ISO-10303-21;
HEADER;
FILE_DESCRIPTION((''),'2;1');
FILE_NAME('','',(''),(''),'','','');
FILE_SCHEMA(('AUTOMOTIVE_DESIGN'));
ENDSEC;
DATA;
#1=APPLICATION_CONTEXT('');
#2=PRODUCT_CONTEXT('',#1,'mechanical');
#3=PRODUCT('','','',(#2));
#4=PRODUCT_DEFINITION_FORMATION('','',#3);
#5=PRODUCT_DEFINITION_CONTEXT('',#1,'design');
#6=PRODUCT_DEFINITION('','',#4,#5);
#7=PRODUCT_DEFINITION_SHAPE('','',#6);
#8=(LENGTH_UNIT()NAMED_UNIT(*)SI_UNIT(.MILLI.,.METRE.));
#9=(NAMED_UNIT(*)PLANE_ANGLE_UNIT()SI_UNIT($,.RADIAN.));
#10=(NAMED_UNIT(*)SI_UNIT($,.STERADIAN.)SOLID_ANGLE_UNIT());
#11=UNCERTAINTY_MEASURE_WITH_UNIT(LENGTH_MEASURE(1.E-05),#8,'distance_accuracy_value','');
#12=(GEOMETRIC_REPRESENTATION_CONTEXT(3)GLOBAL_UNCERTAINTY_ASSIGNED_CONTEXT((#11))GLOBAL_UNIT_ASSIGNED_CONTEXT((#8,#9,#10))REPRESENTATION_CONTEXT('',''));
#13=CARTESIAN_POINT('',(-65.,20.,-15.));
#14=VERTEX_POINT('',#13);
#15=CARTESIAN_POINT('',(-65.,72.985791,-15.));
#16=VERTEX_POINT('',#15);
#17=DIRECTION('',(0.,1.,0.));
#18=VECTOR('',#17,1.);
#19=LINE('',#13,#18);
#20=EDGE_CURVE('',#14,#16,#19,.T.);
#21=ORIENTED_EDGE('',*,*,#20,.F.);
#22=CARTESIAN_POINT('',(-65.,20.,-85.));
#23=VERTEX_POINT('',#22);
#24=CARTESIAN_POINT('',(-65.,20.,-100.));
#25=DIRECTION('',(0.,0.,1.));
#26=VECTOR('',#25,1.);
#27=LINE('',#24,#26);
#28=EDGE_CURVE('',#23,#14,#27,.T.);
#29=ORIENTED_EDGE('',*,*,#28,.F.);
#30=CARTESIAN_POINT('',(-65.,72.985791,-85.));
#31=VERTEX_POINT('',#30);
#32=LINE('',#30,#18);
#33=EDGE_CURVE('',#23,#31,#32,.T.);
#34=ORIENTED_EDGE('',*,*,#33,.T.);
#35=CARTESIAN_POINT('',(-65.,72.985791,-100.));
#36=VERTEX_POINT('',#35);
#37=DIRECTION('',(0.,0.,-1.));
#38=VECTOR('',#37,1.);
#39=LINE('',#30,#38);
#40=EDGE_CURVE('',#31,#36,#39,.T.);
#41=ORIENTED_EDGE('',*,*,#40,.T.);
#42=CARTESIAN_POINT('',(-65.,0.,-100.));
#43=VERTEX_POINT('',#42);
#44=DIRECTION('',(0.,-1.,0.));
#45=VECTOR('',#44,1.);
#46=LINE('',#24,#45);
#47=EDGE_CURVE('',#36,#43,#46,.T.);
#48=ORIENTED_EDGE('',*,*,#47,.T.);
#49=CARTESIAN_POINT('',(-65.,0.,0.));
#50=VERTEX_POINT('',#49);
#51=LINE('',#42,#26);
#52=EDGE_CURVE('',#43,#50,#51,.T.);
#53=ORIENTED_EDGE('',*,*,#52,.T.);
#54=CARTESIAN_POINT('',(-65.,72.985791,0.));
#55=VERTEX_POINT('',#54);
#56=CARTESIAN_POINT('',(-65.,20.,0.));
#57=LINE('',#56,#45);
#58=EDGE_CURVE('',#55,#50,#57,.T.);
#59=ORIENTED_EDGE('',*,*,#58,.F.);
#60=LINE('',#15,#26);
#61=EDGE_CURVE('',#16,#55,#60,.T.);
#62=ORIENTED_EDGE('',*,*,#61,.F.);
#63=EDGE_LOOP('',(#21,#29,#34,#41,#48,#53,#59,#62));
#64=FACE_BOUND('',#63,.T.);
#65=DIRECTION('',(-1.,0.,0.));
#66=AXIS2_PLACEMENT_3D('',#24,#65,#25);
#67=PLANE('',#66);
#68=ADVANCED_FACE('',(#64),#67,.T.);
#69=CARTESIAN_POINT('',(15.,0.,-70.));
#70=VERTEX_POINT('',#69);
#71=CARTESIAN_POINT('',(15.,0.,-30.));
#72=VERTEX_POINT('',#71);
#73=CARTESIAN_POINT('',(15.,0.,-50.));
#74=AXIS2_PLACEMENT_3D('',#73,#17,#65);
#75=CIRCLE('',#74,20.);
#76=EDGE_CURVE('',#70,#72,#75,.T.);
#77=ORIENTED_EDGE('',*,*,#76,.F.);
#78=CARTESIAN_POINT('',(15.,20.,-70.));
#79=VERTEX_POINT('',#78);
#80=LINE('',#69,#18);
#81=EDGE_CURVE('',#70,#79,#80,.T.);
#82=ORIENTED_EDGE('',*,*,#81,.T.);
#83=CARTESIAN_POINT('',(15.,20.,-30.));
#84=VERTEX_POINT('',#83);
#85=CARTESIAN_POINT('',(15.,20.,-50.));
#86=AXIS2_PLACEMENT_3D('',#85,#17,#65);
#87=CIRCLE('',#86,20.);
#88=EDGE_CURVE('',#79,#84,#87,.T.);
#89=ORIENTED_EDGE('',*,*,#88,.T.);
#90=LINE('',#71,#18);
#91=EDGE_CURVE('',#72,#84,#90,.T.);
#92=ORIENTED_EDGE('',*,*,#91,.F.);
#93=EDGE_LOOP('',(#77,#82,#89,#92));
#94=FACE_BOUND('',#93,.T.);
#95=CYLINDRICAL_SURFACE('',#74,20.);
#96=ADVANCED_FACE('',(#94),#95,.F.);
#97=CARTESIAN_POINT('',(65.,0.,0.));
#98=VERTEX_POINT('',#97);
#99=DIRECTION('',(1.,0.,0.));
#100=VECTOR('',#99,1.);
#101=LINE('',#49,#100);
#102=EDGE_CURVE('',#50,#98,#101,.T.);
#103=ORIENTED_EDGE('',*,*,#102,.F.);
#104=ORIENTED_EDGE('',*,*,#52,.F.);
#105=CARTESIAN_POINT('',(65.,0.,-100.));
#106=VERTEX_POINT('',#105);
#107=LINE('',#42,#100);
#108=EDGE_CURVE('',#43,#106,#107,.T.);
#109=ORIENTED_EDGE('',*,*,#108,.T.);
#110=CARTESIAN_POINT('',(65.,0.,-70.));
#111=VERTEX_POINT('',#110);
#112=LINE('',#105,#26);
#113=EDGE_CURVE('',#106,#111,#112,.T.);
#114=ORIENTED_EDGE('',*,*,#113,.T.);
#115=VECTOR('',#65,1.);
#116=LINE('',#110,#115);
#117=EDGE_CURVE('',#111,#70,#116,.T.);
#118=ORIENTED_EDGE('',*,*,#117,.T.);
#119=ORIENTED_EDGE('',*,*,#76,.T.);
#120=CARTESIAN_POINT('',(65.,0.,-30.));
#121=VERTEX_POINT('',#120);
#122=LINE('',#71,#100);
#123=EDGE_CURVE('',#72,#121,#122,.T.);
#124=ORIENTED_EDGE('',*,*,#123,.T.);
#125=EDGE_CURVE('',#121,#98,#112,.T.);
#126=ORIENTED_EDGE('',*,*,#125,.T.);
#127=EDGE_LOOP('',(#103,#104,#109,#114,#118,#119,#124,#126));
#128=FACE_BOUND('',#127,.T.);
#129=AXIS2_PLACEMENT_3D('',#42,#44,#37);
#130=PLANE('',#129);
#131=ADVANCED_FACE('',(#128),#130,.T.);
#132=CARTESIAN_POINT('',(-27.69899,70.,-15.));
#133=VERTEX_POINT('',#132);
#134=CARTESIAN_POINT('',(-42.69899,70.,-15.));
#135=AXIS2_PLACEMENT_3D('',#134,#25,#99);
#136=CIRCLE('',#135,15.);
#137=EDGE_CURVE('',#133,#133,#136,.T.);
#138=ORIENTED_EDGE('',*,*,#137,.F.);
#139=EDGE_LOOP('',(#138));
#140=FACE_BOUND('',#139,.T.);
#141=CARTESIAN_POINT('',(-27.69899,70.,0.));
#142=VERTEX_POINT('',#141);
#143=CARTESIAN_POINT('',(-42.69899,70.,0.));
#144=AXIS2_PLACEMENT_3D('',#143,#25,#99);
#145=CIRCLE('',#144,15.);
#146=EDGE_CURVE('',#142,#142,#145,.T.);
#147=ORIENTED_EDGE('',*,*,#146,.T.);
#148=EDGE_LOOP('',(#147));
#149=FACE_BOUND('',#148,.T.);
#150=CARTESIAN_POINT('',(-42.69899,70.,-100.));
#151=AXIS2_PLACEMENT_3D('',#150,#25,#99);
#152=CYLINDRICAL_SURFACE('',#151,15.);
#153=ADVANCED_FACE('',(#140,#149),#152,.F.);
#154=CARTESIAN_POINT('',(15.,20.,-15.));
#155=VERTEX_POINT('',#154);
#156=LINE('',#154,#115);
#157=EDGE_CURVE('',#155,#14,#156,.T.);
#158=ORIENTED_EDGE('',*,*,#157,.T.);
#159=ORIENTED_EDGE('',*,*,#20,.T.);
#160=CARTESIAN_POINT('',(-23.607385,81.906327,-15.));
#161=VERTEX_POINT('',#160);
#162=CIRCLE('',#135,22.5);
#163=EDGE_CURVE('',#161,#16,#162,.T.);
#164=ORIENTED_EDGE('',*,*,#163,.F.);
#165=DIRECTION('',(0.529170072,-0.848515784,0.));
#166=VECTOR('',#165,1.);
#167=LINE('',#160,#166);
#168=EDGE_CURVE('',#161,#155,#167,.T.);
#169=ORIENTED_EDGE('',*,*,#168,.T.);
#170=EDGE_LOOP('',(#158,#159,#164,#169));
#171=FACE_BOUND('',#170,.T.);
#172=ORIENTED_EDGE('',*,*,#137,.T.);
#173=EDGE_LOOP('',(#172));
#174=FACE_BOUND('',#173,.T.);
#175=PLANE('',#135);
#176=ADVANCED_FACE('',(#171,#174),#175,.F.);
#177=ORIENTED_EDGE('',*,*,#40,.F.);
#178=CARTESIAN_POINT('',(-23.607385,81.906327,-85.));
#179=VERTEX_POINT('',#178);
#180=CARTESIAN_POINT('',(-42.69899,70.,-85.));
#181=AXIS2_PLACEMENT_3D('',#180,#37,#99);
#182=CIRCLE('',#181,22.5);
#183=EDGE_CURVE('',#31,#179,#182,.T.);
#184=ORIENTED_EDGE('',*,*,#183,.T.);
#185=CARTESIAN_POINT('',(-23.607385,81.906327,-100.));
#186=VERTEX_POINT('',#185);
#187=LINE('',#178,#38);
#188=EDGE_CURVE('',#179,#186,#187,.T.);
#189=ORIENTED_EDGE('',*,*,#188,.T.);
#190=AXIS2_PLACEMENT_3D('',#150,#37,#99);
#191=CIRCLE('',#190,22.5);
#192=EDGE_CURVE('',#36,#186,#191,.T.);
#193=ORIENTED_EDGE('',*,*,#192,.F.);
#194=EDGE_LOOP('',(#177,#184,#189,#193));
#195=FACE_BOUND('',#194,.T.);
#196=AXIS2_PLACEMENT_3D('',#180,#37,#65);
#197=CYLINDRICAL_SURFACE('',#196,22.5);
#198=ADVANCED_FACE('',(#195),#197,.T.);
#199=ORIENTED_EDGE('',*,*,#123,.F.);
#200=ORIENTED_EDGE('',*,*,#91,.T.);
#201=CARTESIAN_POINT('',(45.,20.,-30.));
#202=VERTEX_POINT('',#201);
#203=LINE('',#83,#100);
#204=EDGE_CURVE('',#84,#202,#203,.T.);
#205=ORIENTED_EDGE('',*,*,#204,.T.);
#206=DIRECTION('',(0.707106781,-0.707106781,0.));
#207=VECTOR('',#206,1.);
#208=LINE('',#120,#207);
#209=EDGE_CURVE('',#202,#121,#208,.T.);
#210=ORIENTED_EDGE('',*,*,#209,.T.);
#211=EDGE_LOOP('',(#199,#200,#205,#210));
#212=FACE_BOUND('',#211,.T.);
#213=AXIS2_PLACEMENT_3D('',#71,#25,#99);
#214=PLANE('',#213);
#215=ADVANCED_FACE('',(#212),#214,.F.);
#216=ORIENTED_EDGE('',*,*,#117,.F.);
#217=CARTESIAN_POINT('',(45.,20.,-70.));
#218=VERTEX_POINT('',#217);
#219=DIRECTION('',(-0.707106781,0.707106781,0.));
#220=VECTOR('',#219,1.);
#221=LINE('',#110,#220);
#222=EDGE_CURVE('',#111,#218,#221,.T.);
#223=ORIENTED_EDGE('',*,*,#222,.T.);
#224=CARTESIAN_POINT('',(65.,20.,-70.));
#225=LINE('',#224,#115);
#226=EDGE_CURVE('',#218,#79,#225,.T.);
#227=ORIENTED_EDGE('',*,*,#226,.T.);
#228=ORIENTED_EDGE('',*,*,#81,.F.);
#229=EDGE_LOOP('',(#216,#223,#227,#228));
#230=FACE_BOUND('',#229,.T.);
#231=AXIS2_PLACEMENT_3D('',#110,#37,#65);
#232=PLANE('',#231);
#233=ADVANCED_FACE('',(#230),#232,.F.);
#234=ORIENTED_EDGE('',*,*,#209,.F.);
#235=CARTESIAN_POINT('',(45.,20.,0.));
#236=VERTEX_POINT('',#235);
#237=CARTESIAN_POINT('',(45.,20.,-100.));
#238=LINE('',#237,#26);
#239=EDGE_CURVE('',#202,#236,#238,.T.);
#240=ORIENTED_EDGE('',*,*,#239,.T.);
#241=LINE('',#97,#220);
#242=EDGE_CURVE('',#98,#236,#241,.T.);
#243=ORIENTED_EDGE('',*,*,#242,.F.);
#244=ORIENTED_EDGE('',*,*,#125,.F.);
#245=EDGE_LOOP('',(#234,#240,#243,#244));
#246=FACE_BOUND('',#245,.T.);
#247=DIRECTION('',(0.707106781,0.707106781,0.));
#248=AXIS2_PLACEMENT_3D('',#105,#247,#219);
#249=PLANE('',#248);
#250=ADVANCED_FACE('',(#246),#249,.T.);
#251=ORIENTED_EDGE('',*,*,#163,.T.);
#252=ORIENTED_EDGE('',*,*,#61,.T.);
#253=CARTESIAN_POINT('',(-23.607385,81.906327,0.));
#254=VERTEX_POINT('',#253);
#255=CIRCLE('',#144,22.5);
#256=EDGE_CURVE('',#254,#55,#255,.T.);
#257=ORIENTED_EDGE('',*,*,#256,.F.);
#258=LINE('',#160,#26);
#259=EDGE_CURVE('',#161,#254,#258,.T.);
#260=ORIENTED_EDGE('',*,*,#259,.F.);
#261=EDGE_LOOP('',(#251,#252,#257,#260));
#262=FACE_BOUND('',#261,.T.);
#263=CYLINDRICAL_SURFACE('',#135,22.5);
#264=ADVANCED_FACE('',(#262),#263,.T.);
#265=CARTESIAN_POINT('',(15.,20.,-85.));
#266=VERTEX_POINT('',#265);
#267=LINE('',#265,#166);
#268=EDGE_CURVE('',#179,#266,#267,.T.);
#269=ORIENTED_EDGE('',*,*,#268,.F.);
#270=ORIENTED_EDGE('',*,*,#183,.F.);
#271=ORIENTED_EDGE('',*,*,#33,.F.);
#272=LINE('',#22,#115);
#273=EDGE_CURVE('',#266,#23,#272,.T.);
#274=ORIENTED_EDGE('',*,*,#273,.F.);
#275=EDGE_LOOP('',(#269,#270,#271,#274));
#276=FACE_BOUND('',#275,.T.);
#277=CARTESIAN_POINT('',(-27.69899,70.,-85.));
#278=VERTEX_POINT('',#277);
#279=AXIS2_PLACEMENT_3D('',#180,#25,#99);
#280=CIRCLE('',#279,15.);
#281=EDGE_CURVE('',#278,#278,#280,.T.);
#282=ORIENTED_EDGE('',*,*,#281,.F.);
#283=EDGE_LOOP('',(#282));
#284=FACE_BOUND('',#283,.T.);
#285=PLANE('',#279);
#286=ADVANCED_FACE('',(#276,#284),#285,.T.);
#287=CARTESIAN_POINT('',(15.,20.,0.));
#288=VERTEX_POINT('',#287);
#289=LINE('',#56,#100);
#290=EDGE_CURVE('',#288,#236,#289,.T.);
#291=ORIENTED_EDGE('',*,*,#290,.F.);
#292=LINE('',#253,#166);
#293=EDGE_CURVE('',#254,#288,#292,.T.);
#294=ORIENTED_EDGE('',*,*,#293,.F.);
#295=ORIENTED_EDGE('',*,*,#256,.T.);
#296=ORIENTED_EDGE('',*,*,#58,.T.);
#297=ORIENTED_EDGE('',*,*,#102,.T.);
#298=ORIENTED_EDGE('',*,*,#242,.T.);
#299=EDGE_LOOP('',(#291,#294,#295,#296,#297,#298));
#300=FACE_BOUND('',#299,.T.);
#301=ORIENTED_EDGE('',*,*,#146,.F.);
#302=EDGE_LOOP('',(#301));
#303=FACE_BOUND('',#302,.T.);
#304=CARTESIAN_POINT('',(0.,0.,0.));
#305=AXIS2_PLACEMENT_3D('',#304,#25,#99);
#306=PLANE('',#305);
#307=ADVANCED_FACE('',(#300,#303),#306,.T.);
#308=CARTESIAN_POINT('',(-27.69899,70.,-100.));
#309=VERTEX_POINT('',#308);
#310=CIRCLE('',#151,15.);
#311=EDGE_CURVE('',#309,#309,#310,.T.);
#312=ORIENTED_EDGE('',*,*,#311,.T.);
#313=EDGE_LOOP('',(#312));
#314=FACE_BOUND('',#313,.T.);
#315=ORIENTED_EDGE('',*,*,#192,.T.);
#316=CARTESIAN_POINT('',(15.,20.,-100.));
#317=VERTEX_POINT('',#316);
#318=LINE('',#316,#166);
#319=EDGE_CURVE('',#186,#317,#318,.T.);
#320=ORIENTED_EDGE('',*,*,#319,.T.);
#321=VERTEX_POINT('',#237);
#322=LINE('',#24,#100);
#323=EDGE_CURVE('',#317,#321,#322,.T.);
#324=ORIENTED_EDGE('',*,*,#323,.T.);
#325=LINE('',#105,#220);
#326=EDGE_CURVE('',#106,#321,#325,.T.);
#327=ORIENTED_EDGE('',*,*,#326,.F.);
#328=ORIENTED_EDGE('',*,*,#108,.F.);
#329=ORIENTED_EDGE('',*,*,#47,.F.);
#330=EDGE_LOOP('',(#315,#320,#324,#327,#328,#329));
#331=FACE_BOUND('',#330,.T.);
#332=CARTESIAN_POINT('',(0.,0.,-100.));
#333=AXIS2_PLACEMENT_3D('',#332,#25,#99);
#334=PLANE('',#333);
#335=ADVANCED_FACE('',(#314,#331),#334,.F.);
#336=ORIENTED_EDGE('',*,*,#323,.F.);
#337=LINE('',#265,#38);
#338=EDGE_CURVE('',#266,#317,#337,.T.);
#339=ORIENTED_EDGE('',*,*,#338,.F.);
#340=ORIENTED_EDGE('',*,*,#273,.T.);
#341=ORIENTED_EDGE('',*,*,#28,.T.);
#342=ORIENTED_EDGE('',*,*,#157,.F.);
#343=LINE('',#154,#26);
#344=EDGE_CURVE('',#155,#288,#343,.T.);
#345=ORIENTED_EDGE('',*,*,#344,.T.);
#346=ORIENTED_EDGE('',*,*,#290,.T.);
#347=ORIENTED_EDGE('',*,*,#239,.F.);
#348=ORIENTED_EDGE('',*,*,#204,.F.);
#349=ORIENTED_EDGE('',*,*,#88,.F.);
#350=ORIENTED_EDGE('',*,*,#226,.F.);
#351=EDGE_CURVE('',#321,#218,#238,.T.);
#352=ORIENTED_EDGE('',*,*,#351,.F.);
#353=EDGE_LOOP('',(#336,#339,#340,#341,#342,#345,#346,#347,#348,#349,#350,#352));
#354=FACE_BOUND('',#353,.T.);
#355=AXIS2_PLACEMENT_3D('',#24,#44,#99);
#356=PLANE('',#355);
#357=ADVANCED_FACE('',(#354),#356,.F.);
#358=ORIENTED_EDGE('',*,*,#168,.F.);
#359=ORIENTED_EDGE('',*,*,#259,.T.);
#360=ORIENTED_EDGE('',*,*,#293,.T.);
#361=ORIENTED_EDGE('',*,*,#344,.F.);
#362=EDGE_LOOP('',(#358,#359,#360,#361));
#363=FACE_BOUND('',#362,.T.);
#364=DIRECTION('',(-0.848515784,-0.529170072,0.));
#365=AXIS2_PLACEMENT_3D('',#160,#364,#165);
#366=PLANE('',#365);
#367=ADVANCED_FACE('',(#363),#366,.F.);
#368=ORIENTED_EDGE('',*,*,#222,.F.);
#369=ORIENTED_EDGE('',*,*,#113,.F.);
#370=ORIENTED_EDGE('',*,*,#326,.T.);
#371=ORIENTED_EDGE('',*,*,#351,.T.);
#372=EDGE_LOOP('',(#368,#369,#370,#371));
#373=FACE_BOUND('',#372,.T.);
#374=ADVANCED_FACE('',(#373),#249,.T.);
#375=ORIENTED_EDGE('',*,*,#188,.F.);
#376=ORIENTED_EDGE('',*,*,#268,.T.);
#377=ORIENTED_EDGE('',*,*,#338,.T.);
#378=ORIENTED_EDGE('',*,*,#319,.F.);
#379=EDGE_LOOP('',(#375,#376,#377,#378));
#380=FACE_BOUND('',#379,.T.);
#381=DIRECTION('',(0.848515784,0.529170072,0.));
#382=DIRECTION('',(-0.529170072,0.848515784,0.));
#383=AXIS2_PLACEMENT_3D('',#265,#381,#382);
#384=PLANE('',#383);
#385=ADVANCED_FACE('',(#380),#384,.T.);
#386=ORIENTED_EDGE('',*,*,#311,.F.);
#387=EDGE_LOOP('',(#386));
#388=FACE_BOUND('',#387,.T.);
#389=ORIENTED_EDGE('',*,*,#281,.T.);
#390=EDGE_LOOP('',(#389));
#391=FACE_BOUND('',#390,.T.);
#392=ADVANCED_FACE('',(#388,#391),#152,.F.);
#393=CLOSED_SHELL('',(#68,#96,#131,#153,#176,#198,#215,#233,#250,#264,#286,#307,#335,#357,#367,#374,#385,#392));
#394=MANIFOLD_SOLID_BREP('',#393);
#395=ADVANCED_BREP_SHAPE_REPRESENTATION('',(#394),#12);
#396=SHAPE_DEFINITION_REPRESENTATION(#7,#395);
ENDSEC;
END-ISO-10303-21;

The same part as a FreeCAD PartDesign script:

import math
import FreeCAD as App
import Part
import Sketcher
Q = App.Units.Quantity

doc = App.newDocument("Part")
body = doc.addObject("PartDesign::Body", "Body")

# Sketch on XY plane
sketch1 = body.newObject("Sketcher::SketchObject", "Sketch")
sketch1.AttachmentSupport = (doc.getObject("XY_Plane"), [""])
sketch1.MapMode = "FlatFace"
sketch1.addGeometry([
    Part.LineSegment(App.Vector(65, 0, 0), App.Vector(45, 20, 0)),
    Part.LineSegment(App.Vector(45, 20, 0), App.Vector(-65, 20, 0)),
    Part.LineSegment(App.Vector(-65, 20, 0), App.Vector(-65, 0, 0)),
    Part.LineSegment(App.Vector(-65, 0, 0), App.Vector(65, 0, 0)),
], False)
sketch1.addConstraint([
    Sketcher.Constraint("Coincident", 0, 2, 1, 1),
    Sketcher.Constraint("Coincident", 1, 2, 2, 1),
    Sketcher.Constraint("Coincident", 2, 2, 3, 1),
    Sketcher.Constraint("Coincident", 3, 2, 0, 1),
    Sketcher.Constraint("Horizontal", 1),
    Sketcher.Constraint("Vertical", 2),
    Sketcher.Constraint("Horizontal", 3),
    Sketcher.Constraint("Symmetric", 2, 2, 3, 2, -1, 1),
    Sketcher.Constraint("DistanceX", 1, 2, 1, 1, Q("110 mm")),
    Sketcher.Constraint("DistanceX", 3, 1, 3, 2, Q("130 mm")),
    Sketcher.Constraint("DistanceY", 2, 2, 2, 1, Q("20 mm")),
])
pad1 = body.newObject("PartDesign::Pad", "Pad")
pad1.Profile = sketch1
pad1.Length = 100
pad1.Reversed = True

# Sketch on XZ plane
sketch2 = body.newObject("Sketcher::SketchObject", "Sketch001")
sketch2.AttachmentSupport = (doc.getObject("XZ_Plane"), [""])
sketch2.MapMode = "FlatFace"
sketch2.AttachmentOffset = App.Placement(App.Vector(0, 0, -20), App.Rotation())
sketch2.addGeometry([
    Part.LineSegment(App.Vector(65, -70, 0), App.Vector(15, -70, 0)),
    Part.ArcOfCircle(Part.Circle(App.Vector(15, -50, 0), App.Vector(0, 0, 1), 20), math.radians(90), math.radians(270)),
    Part.LineSegment(App.Vector(15, -30, 0), App.Vector(65, -30, 0)),
    Part.LineSegment(App.Vector(65, -30, 0), App.Vector(65, -70, 0)),
], False)
sketch2.addConstraint([
    Sketcher.Constraint("Tangent", 0, 2, 1, 2),
    Sketcher.Constraint("Tangent", 1, 1, 2, 1),
    Sketcher.Constraint("Coincident", 2, 2, 3, 1),
    Sketcher.Constraint("Coincident", 3, 2, 0, 1),
    Sketcher.Constraint("Horizontal", 0),
    Sketcher.Constraint("Horizontal", 2),
    Sketcher.Constraint("Vertical", 3),
    Sketcher.Constraint("Radius", 1, Q("20 mm")),
    Sketcher.Constraint("DistanceX", 0, 2, 0, 1, Q("50 mm")),
    Sketcher.Constraint("DistanceX", -1, 1, 1, 3, Q("15 mm")),
    Sketcher.Constraint("DistanceY", 1, 3, -1, 1, Q("50 mm")),
])
pocket1 = body.newObject("PartDesign::Pocket", "Pocket")
pocket1.Profile = sketch2
pocket1.Type = "ThroughAll"
pocket1.Reversed = True

# Sketch on XY plane
sketch3 = body.newObject("Sketcher::SketchObject", "Sketch002")
sketch3.AttachmentSupport = (doc.getObject("XY_Plane"), [""])
sketch3.MapMode = "FlatFace"
sketch3.addGeometry([
    Part.LineSegment(App.Vector(-65, 73, 0), App.Vector(-65, 20, 0)),
    Part.LineSegment(App.Vector(-65, 20, 0), App.Vector(15, 20, 0)),
    Part.LineSegment(App.Vector(15, 20, 0), App.Vector(-24, 82, 0)),
    Part.ArcOfCircle(Part.Circle(App.Vector(-43, 70, 0), App.Vector(0, 0, 1), 22), math.radians(32), math.radians(172)),
], False)
sketch3.addConstraint([
    Sketcher.Constraint("Coincident", 0, 2, 1, 1),
    Sketcher.Constraint("Coincident", 1, 2, 2, 1),
    Sketcher.Constraint("Tangent", 2, 2, 3, 1),
    Sketcher.Constraint("Coincident", 3, 2, 0, 1),
    Sketcher.Constraint("Vertical", 0),
    Sketcher.Constraint("Horizontal", 1),
    Sketcher.Constraint("Radius", 3, Q("22.5 mm")),
    Sketcher.Constraint("DistanceX", 1, 1, 1, 2, Q("80 mm")),
    Sketcher.Constraint("DistanceY", -1, 1, 3, 3, Q("70 mm")),
    Sketcher.Constraint("DistanceX", 0, 2, -1, 1, Q("65 mm")),
    Sketcher.Constraint("DistanceY", -1, 1, 0, 2, Q("20 mm")),
    Sketcher.Constraint("DistanceY", 0, 2, 0, 1, Q("52.985791 mm")),
])
pad2 = body.newObject("PartDesign::Pad", "Pad001")
pad2.Profile = sketch3
pad2.Length = 15
pad2.Reversed = True

# Sketch on XY plane
sketch4 = body.newObject("Sketcher::SketchObject", "Sketch003")
sketch4.AttachmentSupport = (doc.getObject("XY_Plane"), [""])
sketch4.MapMode = "FlatFace"
sketch4.AttachmentOffset = App.Placement(App.Vector(0, 0, -85), App.Rotation())
sketch4.addGeometry([
    Part.LineSegment(App.Vector(-24, 82, 0), App.Vector(15, 20, 0)),
    Part.LineSegment(App.Vector(15, 20, 0), App.Vector(-65, 20, 0)),
    Part.LineSegment(App.Vector(-65, 20, 0), App.Vector(-65, 73, 0)),
    Part.ArcOfCircle(Part.Circle(App.Vector(-43, 70, 0), App.Vector(0, 0, 1), 22), math.radians(32), math.radians(172)),
], False)
sketch4.addConstraint([
    Sketcher.Constraint("Coincident", 0, 2, 1, 1),
    Sketcher.Constraint("Coincident", 1, 2, 2, 1),
    Sketcher.Constraint("Coincident", 2, 2, 3, 2),
    Sketcher.Constraint("Tangent", 3, 1, 0, 1),
    Sketcher.Constraint("Horizontal", 1),
    Sketcher.Constraint("Vertical", 2),
    Sketcher.Constraint("Radius", 3, Q("22.5 mm")),
    Sketcher.Constraint("DistanceX", 1, 2, 1, 1, Q("80 mm")),
    Sketcher.Constraint("DistanceY", -1, 1, 3, 3, Q("70 mm")),
    Sketcher.Constraint("DistanceX", -1, 1, 0, 2, Q("15 mm")),
    Sketcher.Constraint("DistanceY", -1, 1, 0, 2, Q("20 mm")),
    Sketcher.Constraint("DistanceY", 2, 1, 2, 2, Q("52.985791 mm")),
])
pad3 = body.newObject("PartDesign::Pad", "Pad002")
pad3.Profile = sketch4
pad3.Length = 15
pad3.Reversed = True

# Sketch on XY plane
sketch5 = body.newObject("Sketcher::SketchObject", "Sketch004")
sketch5.AttachmentSupport = (doc.getObject("XY_Plane"), [""])
sketch5.MapMode = "FlatFace"
sketch5.addGeometry(Part.Circle(App.Vector(-43, 70, 0), App.Vector(0, 0, 1), 15), False)
sketch5.addConstraint([
    Sketcher.Constraint("Diameter", 0, Q("30 mm")),
    Sketcher.Constraint("DistanceY", -1, 1, 0, 3, Q("70 mm")),
    Sketcher.Constraint("DistanceX", 0, 3, -1, 1, Q("42.69899 mm")),
])
pocket2 = body.newObject("PartDesign::Pocket", "Pocket001")
pocket2.Profile = sketch5
pocket2.Type = "ThroughAll"

doc.recompute()
